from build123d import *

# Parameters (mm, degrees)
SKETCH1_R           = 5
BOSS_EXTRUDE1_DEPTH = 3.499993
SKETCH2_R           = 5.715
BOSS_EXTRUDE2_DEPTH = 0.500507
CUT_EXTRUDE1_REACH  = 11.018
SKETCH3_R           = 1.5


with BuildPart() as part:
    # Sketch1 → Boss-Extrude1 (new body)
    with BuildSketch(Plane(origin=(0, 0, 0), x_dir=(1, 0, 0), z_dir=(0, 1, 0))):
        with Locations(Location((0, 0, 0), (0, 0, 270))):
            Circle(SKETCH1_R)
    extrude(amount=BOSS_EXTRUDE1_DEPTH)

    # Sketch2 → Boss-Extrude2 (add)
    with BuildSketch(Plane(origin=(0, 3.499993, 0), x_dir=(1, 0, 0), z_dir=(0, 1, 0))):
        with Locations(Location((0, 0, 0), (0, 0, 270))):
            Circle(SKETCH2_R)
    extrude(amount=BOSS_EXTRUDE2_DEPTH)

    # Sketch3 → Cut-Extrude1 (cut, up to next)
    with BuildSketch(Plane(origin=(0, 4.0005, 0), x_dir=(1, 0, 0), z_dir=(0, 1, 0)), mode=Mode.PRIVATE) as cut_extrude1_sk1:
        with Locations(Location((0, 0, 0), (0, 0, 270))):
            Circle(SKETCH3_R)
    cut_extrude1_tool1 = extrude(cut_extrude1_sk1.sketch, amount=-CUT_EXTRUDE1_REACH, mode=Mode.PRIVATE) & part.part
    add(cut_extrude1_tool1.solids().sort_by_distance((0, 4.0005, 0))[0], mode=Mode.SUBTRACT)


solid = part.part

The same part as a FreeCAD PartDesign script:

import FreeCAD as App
import Part
import Sketcher
from FreeCAD import Vector
Q = App.Units.Quantity

doc = App.newDocument("Part")
body = doc.addObject("PartDesign::Body", "Body")

# Sketch on XZ plane
sketch1 = body.newObject("Sketcher::SketchObject", "Sketch")
sketch1.AttachmentSupport = (doc.getObject("XZ_Plane"), [""])
sketch1.MapMode = "FlatFace"
sketch1.addGeometry(Part.Circle(Vector(0, 0, 0), Vector(0, 0, 1), 5), False)
sketch1.addConstraint(Sketcher.Constraint("Coincident", 0, 3, -1, 1))
sketch1.addConstraint(Sketcher.Constraint("Diameter", 0, Q("10 mm")))
pad1 = body.newObject("PartDesign::Pad", "Pad")
pad1.Profile = sketch1
pad1.Length = 3.499993
pad1.Reversed = True

# Sketch on XZ plane
sketch2 = body.newObject("Sketcher::SketchObject", "Sketch001")
sketch2.AttachmentSupport = (doc.getObject("XZ_Plane"), [""])
sketch2.MapMode = "FlatFace"
sketch2.AttachmentOffset = App.Placement(Vector(0, 0, -3.499993), App.Rotation())
sketch2.addGeometry(Part.Circle(Vector(0, 0, 0), Vector(0, 0, 1), 6), False)
sketch2.addConstraint(Sketcher.Constraint("Coincident", 0, 3, -1, 1))
sketch2.addConstraint(Sketcher.Constraint("Diameter", 0, Q("11.43 mm")))
pad2 = body.newObject("PartDesign::Pad", "Pad001")
pad2.Profile = sketch2
pad2.Length = 0.500507
pad2.Reversed = True

# Sketch on XZ plane
sketch3 = body.newObject("Sketcher::SketchObject", "Sketch002")
sketch3.AttachmentSupport = (doc.getObject("XZ_Plane"), [""])
sketch3.MapMode = "FlatFace"
sketch3.AttachmentOffset = App.Placement(Vector(0, 0, -4.0005), App.Rotation())
sketch3.addGeometry(Part.Circle(Vector(0, 0, 0), Vector(0, 0, 1), 1.5), False)
sketch3.addConstraint(Sketcher.Constraint("Coincident", 0, 3, -1, 1))
sketch3.addConstraint(Sketcher.Constraint("Diameter", 0, Q("3 mm")))
pocket1 = body.newObject("PartDesign::Pocket", "Pocket")
pocket1.Profile = sketch3
pocket1.Type = "UpToFirst"
pocket1.Reversed = True

doc.recompute()
